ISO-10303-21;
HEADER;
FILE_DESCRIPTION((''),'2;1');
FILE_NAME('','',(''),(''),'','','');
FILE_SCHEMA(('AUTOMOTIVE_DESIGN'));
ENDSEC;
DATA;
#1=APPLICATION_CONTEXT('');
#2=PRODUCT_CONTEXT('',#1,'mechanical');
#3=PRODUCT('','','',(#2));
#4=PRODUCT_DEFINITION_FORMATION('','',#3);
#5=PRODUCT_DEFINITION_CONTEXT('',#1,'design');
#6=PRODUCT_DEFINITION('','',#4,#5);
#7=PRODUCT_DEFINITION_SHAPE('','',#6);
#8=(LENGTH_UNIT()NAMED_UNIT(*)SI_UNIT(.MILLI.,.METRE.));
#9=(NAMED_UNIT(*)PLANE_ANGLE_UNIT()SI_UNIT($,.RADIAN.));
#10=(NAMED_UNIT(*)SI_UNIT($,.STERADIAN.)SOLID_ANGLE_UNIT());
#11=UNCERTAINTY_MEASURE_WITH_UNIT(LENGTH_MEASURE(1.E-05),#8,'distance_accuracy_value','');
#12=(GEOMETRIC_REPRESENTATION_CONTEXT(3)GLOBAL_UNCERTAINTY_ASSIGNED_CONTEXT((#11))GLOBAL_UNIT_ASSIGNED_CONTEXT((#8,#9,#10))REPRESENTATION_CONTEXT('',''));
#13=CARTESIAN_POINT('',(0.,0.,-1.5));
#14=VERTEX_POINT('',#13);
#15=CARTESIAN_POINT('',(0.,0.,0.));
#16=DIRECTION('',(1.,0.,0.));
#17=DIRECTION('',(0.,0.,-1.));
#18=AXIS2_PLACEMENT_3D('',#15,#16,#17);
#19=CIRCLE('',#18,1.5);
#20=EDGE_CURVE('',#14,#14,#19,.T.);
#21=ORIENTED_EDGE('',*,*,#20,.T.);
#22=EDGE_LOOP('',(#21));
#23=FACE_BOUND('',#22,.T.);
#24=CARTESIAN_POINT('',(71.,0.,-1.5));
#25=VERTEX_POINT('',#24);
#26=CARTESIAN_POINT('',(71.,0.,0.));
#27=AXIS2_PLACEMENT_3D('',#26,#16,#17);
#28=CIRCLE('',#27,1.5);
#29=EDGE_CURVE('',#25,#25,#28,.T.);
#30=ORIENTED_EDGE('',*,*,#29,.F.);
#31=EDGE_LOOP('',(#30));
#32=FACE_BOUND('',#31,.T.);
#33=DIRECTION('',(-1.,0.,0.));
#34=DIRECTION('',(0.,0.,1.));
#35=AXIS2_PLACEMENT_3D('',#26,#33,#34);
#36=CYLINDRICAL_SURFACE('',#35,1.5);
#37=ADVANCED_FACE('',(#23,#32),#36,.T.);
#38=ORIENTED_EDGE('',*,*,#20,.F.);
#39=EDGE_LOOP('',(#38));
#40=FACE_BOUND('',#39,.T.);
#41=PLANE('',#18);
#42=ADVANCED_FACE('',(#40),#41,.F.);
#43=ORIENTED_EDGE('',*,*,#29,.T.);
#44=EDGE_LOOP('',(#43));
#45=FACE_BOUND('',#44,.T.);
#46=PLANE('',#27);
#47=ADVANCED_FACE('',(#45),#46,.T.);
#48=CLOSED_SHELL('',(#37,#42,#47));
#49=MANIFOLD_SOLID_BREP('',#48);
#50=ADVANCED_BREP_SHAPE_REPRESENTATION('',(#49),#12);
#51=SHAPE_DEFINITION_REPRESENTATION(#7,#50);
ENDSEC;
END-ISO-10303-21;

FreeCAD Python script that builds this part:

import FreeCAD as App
import Part
import Sketcher

V = App.Vector
Q = App.Units.Quantity

doc = App.newDocument("Part")
body = doc.addObject("PartDesign::Body", "Body")

sketch1 = body.newObject("Sketcher::SketchObject", "Sketch")
sketch1.AttachmentSupport = (doc.getObject("YZ_Plane"), [""])
sketch1.MapMode = "FlatFace"
sketch1.addGeometry(Part.Circle(V(0, 0, 0), V(0, 0, 1), 1.5), False)
sketch1.addConstraint([
    Sketcher.Constraint("Coincident", 0, 3, -1, 1),
    Sketcher.Constraint("Diameter", 0, Q("3 mm")),
])
pad1 = body.newObject("PartDesign::Pad", "Pad")
pad1.Profile = sketch1
pad1.Length = 71

doc.recompute()
